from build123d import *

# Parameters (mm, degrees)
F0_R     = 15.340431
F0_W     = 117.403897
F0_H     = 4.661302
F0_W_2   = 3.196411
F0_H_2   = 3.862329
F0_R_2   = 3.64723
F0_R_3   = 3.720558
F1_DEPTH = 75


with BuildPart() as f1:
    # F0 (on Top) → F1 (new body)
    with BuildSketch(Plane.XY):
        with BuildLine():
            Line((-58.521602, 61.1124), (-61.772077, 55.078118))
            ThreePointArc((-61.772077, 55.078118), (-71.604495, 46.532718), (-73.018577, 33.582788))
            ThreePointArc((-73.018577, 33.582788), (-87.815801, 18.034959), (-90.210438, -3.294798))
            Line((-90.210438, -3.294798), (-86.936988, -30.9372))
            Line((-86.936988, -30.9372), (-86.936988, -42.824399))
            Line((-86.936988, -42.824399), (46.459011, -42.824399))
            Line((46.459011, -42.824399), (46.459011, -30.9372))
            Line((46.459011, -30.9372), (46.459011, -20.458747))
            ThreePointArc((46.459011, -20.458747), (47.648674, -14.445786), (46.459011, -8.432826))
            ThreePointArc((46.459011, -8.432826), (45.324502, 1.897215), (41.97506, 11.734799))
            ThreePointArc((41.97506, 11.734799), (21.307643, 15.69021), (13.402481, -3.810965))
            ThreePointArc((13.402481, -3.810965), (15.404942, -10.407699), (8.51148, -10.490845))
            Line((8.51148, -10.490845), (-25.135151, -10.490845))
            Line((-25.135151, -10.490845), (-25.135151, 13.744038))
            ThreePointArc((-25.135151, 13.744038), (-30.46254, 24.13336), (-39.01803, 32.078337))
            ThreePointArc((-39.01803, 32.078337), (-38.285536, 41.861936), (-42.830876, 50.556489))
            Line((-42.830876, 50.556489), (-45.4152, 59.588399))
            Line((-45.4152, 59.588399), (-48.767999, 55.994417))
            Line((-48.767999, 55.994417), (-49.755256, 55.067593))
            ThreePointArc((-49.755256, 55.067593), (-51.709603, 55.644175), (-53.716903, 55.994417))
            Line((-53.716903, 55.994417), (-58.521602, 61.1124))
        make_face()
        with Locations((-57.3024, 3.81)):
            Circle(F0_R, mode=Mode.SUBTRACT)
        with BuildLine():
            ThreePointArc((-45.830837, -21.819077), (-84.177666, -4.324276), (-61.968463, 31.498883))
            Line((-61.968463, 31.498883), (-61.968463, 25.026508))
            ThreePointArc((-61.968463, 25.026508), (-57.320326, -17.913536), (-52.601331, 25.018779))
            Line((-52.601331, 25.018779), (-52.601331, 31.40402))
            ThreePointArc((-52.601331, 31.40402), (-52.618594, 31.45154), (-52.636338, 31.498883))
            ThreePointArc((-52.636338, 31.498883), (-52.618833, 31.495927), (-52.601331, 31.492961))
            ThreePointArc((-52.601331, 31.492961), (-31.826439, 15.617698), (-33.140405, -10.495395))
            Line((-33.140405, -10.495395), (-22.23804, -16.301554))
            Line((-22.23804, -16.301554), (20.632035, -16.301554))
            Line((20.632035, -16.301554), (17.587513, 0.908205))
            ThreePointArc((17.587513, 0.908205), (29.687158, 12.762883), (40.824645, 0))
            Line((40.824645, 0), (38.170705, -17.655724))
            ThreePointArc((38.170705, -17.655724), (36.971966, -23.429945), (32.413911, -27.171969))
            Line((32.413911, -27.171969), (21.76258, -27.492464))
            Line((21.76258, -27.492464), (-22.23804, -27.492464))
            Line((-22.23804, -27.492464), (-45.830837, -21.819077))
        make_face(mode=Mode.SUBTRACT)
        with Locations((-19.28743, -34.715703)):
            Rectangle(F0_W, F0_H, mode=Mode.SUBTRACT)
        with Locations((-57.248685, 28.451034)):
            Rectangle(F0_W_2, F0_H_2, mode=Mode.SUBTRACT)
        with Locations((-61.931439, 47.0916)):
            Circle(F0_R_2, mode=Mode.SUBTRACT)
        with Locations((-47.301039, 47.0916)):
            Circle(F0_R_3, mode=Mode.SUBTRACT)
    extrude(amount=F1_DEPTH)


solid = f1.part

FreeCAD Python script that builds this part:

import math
import FreeCAD as App
import Part
import Sketcher
from FreeCAD import Vector
Q = App.Units.Quantity


def add_polygon(sketch, points):
    """Adds a closed chain of lines whose ends are joined by coincident constraints."""
    first, n = sketch.GeometryCount, len(points)
    for a, b in zip(points, points[1:] + points[:1]):
        sketch.addGeometry(Part.LineSegment(App.Vector(*a, 0), App.Vector(*b, 0)), False)
    for i in range(n):
        sketch.addConstraint(Sketcher.Constraint("Coincident", first + i, 2, first + (i + 1) % n, 1))

doc = App.newDocument("Part")
body = doc.addObject("PartDesign::Body", "Body")

# Sketch on XY plane
sketch1 = doc.addObject("Sketcher::SketchObject", "Sketch")
body.addObject(sketch1)
sketch1.AttachmentSupport = (doc.XY_Plane, [""])
sketch1.MapMode = "FlatFace"
sketch1.addGeometry(Part.LineSegment(Vector(-58.521602, 61.1124, 0), Vector(-61.772077, 55.078118, 0)), False)  # 0
sketch1.addGeometry(Part.ArcOfCircle(Part.Circle(Vector(-55.778399, 38.252399, 0), Vector(0, 0, 1), 17.861383), math.radians(109.606978), math.radians(195.155294)), False)  # 1
sketch1.addGeometry(Part.ArcOfCircle(Part.Circle(Vector(-57.302398, 3.809999, 0), Vector(0, 0, 1), 33.666262), math.radians(117.828254), math.radians(192.183078)), False)  # 2
sketch1.addGeometry(Part.LineSegment(Vector(-90.210438, -3.294798, 0), Vector(-86.936988, -30.9372, 0)), False)  # 3
sketch1.addGeometry(Part.LineSegment(Vector(-86.936988, -30.9372, 0), Vector(-86.936988, -42.824399, 0)), False)  # 4
sketch1.addGeometry(Part.LineSegment(Vector(-86.936988, -42.824399, 0), Vector(46.459011, -42.824399, 0)), False)  # 5
sketch1.addGeometry(Part.LineSegment(Vector(46.459011, -42.824399, 0), Vector(46.459011, -20.458747, 0)), False)  # 6
sketch1.addGeometry(Part.ArcOfCircle(Part.Circle(Vector(31.858071, -14.445787, 0), Vector(0, 0, 1), 15.790603), math.radians(-22.382849), math.radians(22.382849)), False)  # 7
sketch1.addGeometry(Part.ArcOfCircle(Part.Circle(Vector(-1.137282, -8.432825, 0), Vector(0, 0, 1), 47.596293), math.radians(-0.000001), math.radians(25.069834)), False)  # 8
sketch1.addGeometry(Part.ArcOfCircle(Part.Circle(Vector(29.232299, 1.124965, 0), Vector(0, 0, 1), 16.581512), math.radians(39.781327), math.radians(197.318114)), False)  # 9
sketch1.addGeometry(Part.ArcOfCircle(Part.Circle(Vector(11.926994, -7.861148, 0), Vector(0, 0, 1), 4.310573), math.radians(-142.40635), math.radians(69.983253)), False)  # 10
sketch1.addGeometry(Part.LineSegment(Vector(8.51148, -10.490845, 0), Vector(-25.135151, -10.490845, 0)), False)  # 11
sketch1.addGeometry(Part.LineSegment(Vector(-25.135151, -10.490845, 0), Vector(-25.135151, 13.744038, 0)), False)  # 12
sketch1.addGeometry(Part.ArcOfCircle(Part.Circle(Vector(-57.3024, 3.810002, 0), Vector(0, 0, 1), 33.666258), math.radians(17.161973), math.radians(57.104625)), False)  # 13
sketch1.addGeometry(Part.ArcOfCircle(Part.Circle(Vector(-55.778396, 38.252399, 0), Vector(0, 0, 1), 17.86138), math.radians(-20.222422), math.radians(43.540377)), False)  # 14
sketch1.addGeometry(Part.LineSegment(Vector(-42.830876, 50.556489, 0), Vector(-45.4152, 59.588399, 0)), False)  # 15
sketch1.addGeometry(Part.LineSegment(Vector(-45.4152, 59.588399, 0), Vector(-48.767999, 55.994417, 0)), False)  # 16
sketch1.addGeometry(Part.LineSegment(Vector(-48.767999, 55.994417, 0), Vector(-49.755256, 55.067593, 0)), False)  # 17
sketch1.addGeometry(Part.ArcOfCircle(Part.Circle(Vector(-55.778406, 38.252351, 0), Vector(0, 0, 1), 17.861431), math.radians(70.292686), math.radians(83.372353)), False)  # 18
sketch1.addGeometry(Part.LineSegment(Vector(-53.716903, 55.994417, 0), Vector(-58.521602, 61.1124, 0)), False)  # 19
sketch1.addGeometry(Part.Circle(Vector(-57.3024, 3.81, 0), Vector(0, 0, 1), 15.340431), False)  # 20
add_polygon(sketch1, [(39.414518, -37.046354), (-77.989379, -37.046354), (-77.989379, -32.385052), (39.414518, -32.385052)])  # lines 21-24
sketch1.addGeometry(Part.LineSegment(Vector(-22.23804, -27.492464, 0), Vector(-45.830837, -21.819077, 0)), False)  # 25
sketch1.addGeometry(Part.ArcOfCircle(Part.Circle(Vector(-57.3024, 3.81, 0), Vector(0, 0, 1), 28.079287), math.radians(99.565473), math.radians(294.113267)), False)  # 26
sketch1.addGeometry(Part.LineSegment(Vector(-61.968463, 31.498883, 0), Vector(-61.968463, 25.026508, 0)), False)  # 27
sketch1.addGeometry(Part.ArcOfCircle(Part.Circle(Vector(-57.3024, 3.81, 0), Vector(0, 0, 1), 21.723544), math.radians(102.403378), math.radians(437.502071)), False)  # 28
sketch1.addGeometry(Part.LineSegment(Vector(-52.601331, 25.018779, 0), Vector(-52.601331, 31.40402, 0)), False)  # 29
sketch1.addGeometry(Part.ArcOfCircle(Part.Circle(Vector(-57.297529, 29.724887, 0), Vector(0, 0, 1), 4.98736), math.radians(19.674587), math.radians(20.836249)), False)  # 30
sketch1.addGeometry(Part.ArcOfCircle(Part.Circle(Vector(-57.692452, 1.504007, 0), Vector(0, 0, 1), 30.418036), math.radians(80.364956), math.radians(80.431833)), False)  # 31
sketch1.addGeometry(Part.ArcOfCircle(Part.Circle(Vector(-57.302401, 3.81, 0), Vector(0, 0, 1), 28.079288), math.radians(-30.628154), math.radians(80.362079)), False)  # 32
sketch1.addGeometry(Part.LineSegment(Vector(-33.140405, -10.495395, 0), Vector(-22.23804, -16.301554, 0)), False)  # 33
sketch1.addGeometry(Part.LineSegment(Vector(-22.23804, -16.301554, 0), Vector(20.632035, -16.301554, 0)), False)  # 34
sketch1.addGeometry(Part.LineSegment(Vector(20.632035, -16.301554, 0), Vector(17.587513, 0.908205, 0)), False)  # 35
sketch1.addGeometry(Part.ArcOfCircle(Part.Circle(Vector(29.232299, 1.124965, 0), Vector(0, 0, 1), 11.646803), math.radians(-5.542843), math.radians(181.066401)), False)  # 36
sketch1.addGeometry(Part.LineSegment(Vector(40.824645, 0, 0), Vector(38.170705, -17.655724, 0)), False)  # 37
sketch1.addGeometry(Part.ArcOfCircle(Part.Circle(Vector(29.39275, -18.844945, 0), Vector(0, 0, 1), 8.858146), math.radians(-70.058517), math.radians(7.71535)), False)  # 38
sketch1.addGeometry(Part.LineSegment(Vector(32.413911, -27.171969, 0), Vector(21.76258, -27.492464, 0)), False)  # 39
sketch1.addGeometry(Part.LineSegment(Vector(21.76258, -27.492464, 0), Vector(-22.23804, -27.492464, 0)), False)  # 40
add_polygon(sketch1, [(-55.65048, 26.519869), (-58.846891, 26.519869), (-58.846891, 30.382199), (-55.65048, 30.382199)])  # lines 41-44
sketch1.addGeometry(Part.Circle(Vector(-61.931439, 47.0916, 0), Vector(0, 0, 1), 3.64723), False)  # 45
sketch1.addGeometry(Part.Circle(Vector(-47.301039, 47.0916, 0), Vector(0, 0, 1), 3.720558), False)  # 46
sketch1.addConstraint([
    Sketcher.Constraint("Coincident", 0, 2, 1, 1),
    Sketcher.Constraint("Coincident", 1, 2, 2, 1),
    Sketcher.Constraint("Coincident", 2, 2, 3, 1),
    Sketcher.Constraint("Coincident", 3, 2, 4, 1),
    Sketcher.Constraint("Coincident", 4, 2, 5, 1),
    Sketcher.Constraint("Coincident", 5, 2, 6, 1),
    Sketcher.Constraint("Coincident", 6, 2, 7, 1),
    Sketcher.Constraint("Coincident", 7, 2, 8, 1),
    Sketcher.Constraint("Coincident", 8, 2, 9, 1),
    Sketcher.Constraint("Coincident", 9, 2, 10, 2),
    Sketcher.Constraint("Coincident", 10, 1, 11, 1),
    Sketcher.Constraint("Coincident", 11, 2, 12, 1),
    Sketcher.Constraint("Coincident", 12, 2, 13, 1),
    Sketcher.Constraint("Coincident", 13, 2, 14, 1),
    Sketcher.Constraint("Coincident", 14, 2, 15, 1),
    Sketcher.Constraint("Coincident", 15, 2, 16, 1),
    Sketcher.Constraint("Coincident", 16, 2, 17, 1),
    Sketcher.Constraint("Coincident", 17, 2, 18, 1),
    Sketcher.Constraint("Coincident", 18, 2, 19, 1),
    Sketcher.Constraint("Coincident", 19, 2, 0, 1),
    Sketcher.Constraint("Coincident", 25, 2, 26, 2),
    Sketcher.Constraint("Coincident", 26, 1, 27, 1),
    Sketcher.Constraint("Coincident", 27, 2, 28, 1),
    Sketcher.Constraint("Coincident", 28, 2, 29, 1),
    Sketcher.Constraint("Coincident", 29, 2, 30, 1),
    Sketcher.Constraint("Coincident", 30, 2, 31, 2),
    Sketcher.Constraint("Coincident", 31, 1, 32, 2),
    Sketcher.Constraint("Coincident", 32, 1, 33, 1),
    Sketcher.Constraint("Coincident", 33, 2, 34, 1),
    Sketcher.Constraint("Coincident", 34, 2, 35, 1),
    Sketcher.Constraint("Coincident", 35, 2, 36, 2),
    Sketcher.Constraint("Coincident", 36, 1, 37, 1),
    Sketcher.Constraint("Coincident", 37, 2, 38, 2),
    Sketcher.Constraint("Coincident", 38, 1, 39, 1),
    Sketcher.Constraint("Coincident", 39, 2, 40, 1),
    Sketcher.Constraint("Coincident", 40, 2, 25, 1),
    Sketcher.Constraint("Vertical", 4),
    Sketcher.Constraint("Horizontal", 5),
    Sketcher.Constraint("Vertical", 6),
    Sketcher.Constraint("Horizontal", 11),
    Sketcher.Constraint("Vertical", 12),
    Sketcher.Constraint("Horizontal", 21),
    Sketcher.Constraint("Vertical", 22),
    Sketcher.Constraint("Horizontal", 23),
    Sketcher.Constraint("Vertical", 24),
    Sketcher.Constraint("Vertical", 27),
    Sketcher.Constraint("Vertical", 29),
    Sketcher.Constraint("Horizontal", 34),
    Sketcher.Constraint("Horizontal", 40),
    Sketcher.Constraint("Horizontal", 41),
    Sketcher.Constraint("Vertical", 42),
    Sketcher.Constraint("Horizontal", 43),
    Sketcher.Constraint("Vertical", 44),
    Sketcher.Constraint("Coincident", 13, 3, 2, 3),
    Sketcher.Constraint("Coincident", 14, 3, 1, 3),
    Sketcher.Constraint("Coincident", 20, 3, 2, 3),
    Sketcher.Constraint("Coincident", 26, 3, 2, 3),
    Sketcher.Constraint("Coincident", 28, 3, 2, 3),
    Sketcher.Constraint("Coincident", 32, 3, 2, 3),
    Sketcher.Constraint("Coincident", 36, 3, 9, 3),
    Sketcher.Constraint("PointOnObject", 36, 1, -1),
    Sketcher.Constraint("Diameter", 45, Q("7.29446 mm")),
    Sketcher.Constraint("DistanceX", 5, 1, 5, 2, Q("133.395999 mm")),
    Sketcher.Constraint("DistanceY", -1, 1, 2, 3, Q("3.809999 mm")),
    Sketcher.Constraint("Radius", 13, Q("33.666258 mm")),
    Sketcher.Constraint("Radius", 14, Q("17.86138 mm")),
    Sketcher.Constraint("Radius", 18, Q("17.861431 mm")),
    Sketcher.Constraint("Radius", 30, Q("4.98736 mm")),
    Sketcher.Constraint("Diameter", 20, Q("30.680862 mm")),
    Sketcher.Constraint("Diameter", 46, Q("7.441116 mm")),
    Sketcher.Constraint("DistanceY", 4, 2, 4, 1, Q("11.887199 mm")),
    Sketcher.Constraint("DistanceY", 22, 1, 22, 2, Q("4.661302 mm")),
    Sketcher.Constraint("DistanceX", 16, 2, -1, 1, Q("48.767999 mm")),
    Sketcher.Constraint("Radius", 1, Q("17.861383 mm")),
    Sketcher.Constraint("Radius", 2, Q("33.666262 mm")),
    Sketcher.Constraint("Radius", 7, Q("15.790603 mm")),
    Sketcher.Constraint("Radius", 8, Q("47.596293 mm")),
    Sketcher.Constraint("Radius", 9, Q("16.581512 mm")),
    Sketcher.Constraint("Radius", 10, Q("4.310573 mm")),
    Sketcher.Constraint("Radius", 26, Q("28.079287 mm")),
    Sketcher.Constraint("Radius", 28, Q("21.723544 mm")),
    Sketcher.Constraint("Radius", 31, Q("30.418036 mm")),
    Sketcher.Constraint("Radius", 32, Q("28.079288 mm")),
    Sketcher.Constraint("Radius", 36, Q("11.646803 mm")),
    Sketcher.Constraint("Radius", 38, Q("8.858146 mm")),
    Sketcher.Constraint("DistanceX", 11, 2, 11, 1, Q("33.646631 mm")),
    Sketcher.Constraint("DistanceX", 40, 2, 40, 1, Q("44.00062 mm")),
    Sketcher.Constraint("DistanceX", 41, 2, 41, 1, Q("3.196411 mm")),
    Sketcher.Constraint("DistanceY", 29, 1, 29, 2, Q("6.385241 mm")),
    Sketcher.Constraint("DistanceY", 42, 1, 42, 2, Q("3.862329 mm")),
    Sketcher.Constraint("DistanceX", 1, 3, -1, 1, Q("55.778399 mm")),
    Sketcher.Constraint("DistanceY", -1, 1, 1, 3, Q("38.252399 mm")),
    Sketcher.Constraint("DistanceX", 2, 3, -1, 1, Q("57.302398 mm")),
    Sketcher.Constraint("DistanceX", -1, 1, 9, 3, Q("29.232299 mm")),
    Sketcher.Constraint("DistanceY", -1, 1, 45, 3, Q("47.0916 mm")),
    Sketcher.Constraint("DistanceY", -1, 1, 46, 3, Q("47.0916 mm")),
    Sketcher.Constraint("DistanceY", 2, 2, -1, 1, Q("3.294798 mm")),
    Sketcher.Constraint("DistanceY", 3, 2, -1, 1, Q("30.9372 mm")),
    Sketcher.Constraint("DistanceY", -1, 1, 8, 2, Q("11.734799 mm")),
    Sketcher.Constraint("DistanceX", 15, 2, -1, 1, Q("45.4152 mm")),
    Sketcher.Constraint("DistanceY", -1, 1, 15, 2, Q("59.588399 mm")),
    Sketcher.Constraint("DistanceY", -1, 1, 19, 2, Q("61.1124 mm")),
    Sketcher.Constraint("DistanceY", -1, 1, 42, 2, Q("30.382199 mm")),
    Sketcher.Constraint("Distance", 0, Q("6.854061 mm")),
    Sketcher.Constraint("Distance", 3, Q("27.83555 mm")),
    Sketcher.Constraint("Distance", 19, Q("7.019892 mm")),
    Sketcher.Constraint("Distance", 39, Q("10.656152 mm")),
    Sketcher.Constraint("DistanceX", 21, 2, 21, 1, Q("117.403897 mm")),
    Sketcher.Constraint("DistanceX", 34, 1, 34, 2, Q("42.870075 mm")),
    Sketcher.Constraint("DistanceY", 6, 1, 6, 2, Q("22.365652 mm")),
    Sketcher.Constraint("DistanceY", 12, 1, 12, 2, Q("24.234883 mm")),
    Sketcher.Constraint("DistanceY", 27, 2, 27, 1, Q("6.472375 mm")),
    Sketcher.Constraint("DistanceX", -1, 1, 7, 3, Q("31.858071 mm")),
    Sketcher.Constraint("DistanceX", 8, 3, -1, 1, Q("1.137282 mm")),
    Sketcher.Constraint("DistanceY", -1, 1, 18, 3, Q("38.252351 mm")),
    Sketcher.Constraint("DistanceX", 30, 3, -1, 1, Q("57.297529 mm")),
    Sketcher.Constraint("DistanceX", 31, 3, -1, 1, Q("57.692452 mm")),
    Sketcher.Constraint("DistanceX", -1, 1, 38, 3, Q("29.39275 mm")),
    Sketcher.Constraint("DistanceX", 45, 3, -1, 1, Q("61.931439 mm")),
    Sketcher.Constraint("DistanceX", 46, 3, -1, 1, Q("47.301039 mm")),
    Sketcher.Constraint("DistanceY", -1, 1, 0, 2, Q("55.078118 mm")),
    Sketcher.Constraint("DistanceX", -1, 1, 8, 2, Q("41.97506 mm")),
    Sketcher.Constraint("DistanceX", -1, 1, 9, 2, Q("13.402481 mm")),
    Sketcher.Constraint("DistanceX", -1, 1, 10, 1, Q("8.51148 mm")),
    Sketcher.Constraint("DistanceY", -1, 1, 14, 2, Q("50.556489 mm")),
    Sketcher.Constraint("DistanceX", 21, 2, -1, 1, Q("77.989379 mm")),
    Sketcher.Constraint("DistanceX", 28, 2, -1, 1, Q("52.601331 mm")),
    Sketcher.Constraint("DistanceX", 31, 1, -1, 1, Q("52.601331 mm")),
    Sketcher.Constraint("DistanceX", 33, 2, -1, 1, Q("22.23804 mm")),
    Sketcher.Constraint("DistanceX", -1, 1, 38, 1, Q("32.413911 mm")),
    Sketcher.Constraint("DistanceY", 38, 1, -1, 1, Q("27.171969 mm")),
    Sketcher.Constraint("DistanceX", -1, 1, 39, 2, Q("21.76258 mm")),
    Sketcher.Constraint("DistanceX", 41, 2, -1, 1, Q("58.846891 mm")),
    Sketcher.Constraint("Distance", 16, Q("4.915076 mm")),
    Sketcher.Constraint("Distance", 17, Q("1.354134 mm")),
    Sketcher.Constraint("Distance", 25, Q("24.265354 mm")),
    Sketcher.Constraint("Distance", 33, Q("12.352046 mm")),
    Sketcher.Constraint("Distance", 35, Q("17.476983 mm")),
    Sketcher.Constraint("Distance", 37, Q("17.854075 mm")),
    Sketcher.Constraint("DistanceX", 18, 3, -1, 1, Q("55.778406 mm")),
    Sketcher.Constraint("DistanceY", 21, 2, -1, 1, Q("37.046354 mm")),
    Sketcher.Constraint("DistanceX", 32, 1, -1, 1, Q("33.140405 mm")),
])
pad1 = doc.addObject("PartDesign::Pad", "Pad")
body.addObject(pad1)
pad1.Profile = sketch1
pad1.Length = 75

doc.recompute()
